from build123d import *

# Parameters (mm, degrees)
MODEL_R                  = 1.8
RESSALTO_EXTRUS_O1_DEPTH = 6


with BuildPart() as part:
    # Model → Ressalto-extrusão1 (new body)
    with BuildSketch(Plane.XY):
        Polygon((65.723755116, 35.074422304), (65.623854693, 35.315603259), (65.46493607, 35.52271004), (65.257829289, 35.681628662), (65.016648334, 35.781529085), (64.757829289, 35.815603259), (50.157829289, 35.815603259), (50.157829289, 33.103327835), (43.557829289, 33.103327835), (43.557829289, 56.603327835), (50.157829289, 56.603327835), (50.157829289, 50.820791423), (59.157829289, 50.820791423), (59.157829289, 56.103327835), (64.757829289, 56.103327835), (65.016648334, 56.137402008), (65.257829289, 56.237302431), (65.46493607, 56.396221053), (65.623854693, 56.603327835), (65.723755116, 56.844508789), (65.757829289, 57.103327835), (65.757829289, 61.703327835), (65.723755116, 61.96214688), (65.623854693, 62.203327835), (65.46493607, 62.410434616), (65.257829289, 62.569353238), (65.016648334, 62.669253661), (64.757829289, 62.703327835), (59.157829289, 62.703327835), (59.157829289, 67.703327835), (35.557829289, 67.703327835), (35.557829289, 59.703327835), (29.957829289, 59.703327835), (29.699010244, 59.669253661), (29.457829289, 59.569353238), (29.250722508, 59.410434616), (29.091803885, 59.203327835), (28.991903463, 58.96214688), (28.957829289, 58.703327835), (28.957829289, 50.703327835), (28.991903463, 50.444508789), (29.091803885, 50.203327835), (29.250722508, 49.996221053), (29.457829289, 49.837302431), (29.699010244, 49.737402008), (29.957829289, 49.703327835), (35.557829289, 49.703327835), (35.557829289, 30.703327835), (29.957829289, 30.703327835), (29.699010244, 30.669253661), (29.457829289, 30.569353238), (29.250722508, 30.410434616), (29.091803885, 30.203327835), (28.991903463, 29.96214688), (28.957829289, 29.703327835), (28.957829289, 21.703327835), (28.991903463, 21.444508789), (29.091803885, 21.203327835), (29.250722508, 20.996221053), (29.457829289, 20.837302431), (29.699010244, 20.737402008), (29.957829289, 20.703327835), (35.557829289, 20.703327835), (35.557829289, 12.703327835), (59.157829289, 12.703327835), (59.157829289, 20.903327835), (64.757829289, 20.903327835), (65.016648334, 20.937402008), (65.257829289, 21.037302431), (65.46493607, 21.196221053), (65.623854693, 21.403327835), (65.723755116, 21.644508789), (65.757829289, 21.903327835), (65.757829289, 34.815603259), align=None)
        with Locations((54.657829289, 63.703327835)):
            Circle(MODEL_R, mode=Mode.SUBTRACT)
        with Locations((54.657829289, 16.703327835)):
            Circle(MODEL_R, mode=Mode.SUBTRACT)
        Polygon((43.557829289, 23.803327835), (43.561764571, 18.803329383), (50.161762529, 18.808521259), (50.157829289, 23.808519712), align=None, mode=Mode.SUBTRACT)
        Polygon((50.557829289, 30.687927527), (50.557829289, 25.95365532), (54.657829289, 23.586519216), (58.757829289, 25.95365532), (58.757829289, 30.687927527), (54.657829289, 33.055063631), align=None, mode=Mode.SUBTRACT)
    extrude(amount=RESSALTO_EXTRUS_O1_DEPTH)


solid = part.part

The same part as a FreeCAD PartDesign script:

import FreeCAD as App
import Part
import Sketcher

V = App.Vector
Q = App.Units.Quantity

doc = App.newDocument("Part")
body = doc.addObject("PartDesign::Body", "Body")

sketch1 = body.newObject("Sketcher::SketchObject", "Sketch")
sketch1.AttachmentSupport = (doc.getObject("XY_Plane"), [""])
sketch1.MapMode = "FlatFace"
sketch1.addGeometry([
    Part.LineSegment(V(65.72, 35.07, 0), V(65.62, 35.32, 0)),
    Part.LineSegment(V(65.62, 35.32, 0), V(65.46, 35.52, 0)),
    Part.LineSegment(V(65.46, 35.52, 0), V(65.26, 35.68, 0)),
    Part.LineSegment(V(65.26, 35.68, 0), V(65.02, 35.78, 0)),
    Part.LineSegment(V(65.02, 35.78, 0), V(64.76, 35.82, 0)),
    Part.LineSegment(V(64.76, 35.82, 0), V(50.16, 35.82, 0)),
    Part.LineSegment(V(50.16, 35.82, 0), V(50.16, 33.1, 0)),
    Part.LineSegment(V(50.16, 33.1, 0), V(43.56, 33.1, 0)),
    Part.LineSegment(V(43.56, 33.1, 0), V(43.56, 56.6, 0)),
    Part.LineSegment(V(43.56, 56.6, 0), V(50.16, 56.6, 0)),
    Part.LineSegment(V(50.16, 56.6, 0), V(50.16, 50.82, 0)),
    Part.LineSegment(V(50.16, 50.82, 0), V(59.16, 50.82, 0)),
    Part.LineSegment(V(59.16, 50.82, 0), V(59.16, 56.1, 0)),
    Part.LineSegment(V(59.16, 56.1, 0), V(64.76, 56.1, 0)),
    Part.LineSegment(V(64.76, 56.1, 0), V(65.02, 56.14, 0)),
    Part.LineSegment(V(65.02, 56.14, 0), V(65.26, 56.24, 0)),
    Part.LineSegment(V(65.26, 56.24, 0), V(65.46, 56.4, 0)),
    Part.LineSegment(V(65.46, 56.4, 0), V(65.62, 56.6, 0)),
    Part.LineSegment(V(65.62, 56.6, 0), V(65.72, 56.84, 0)),
    Part.LineSegment(V(65.72, 56.84, 0), V(65.76, 57.1, 0)),
    Part.LineSegment(V(65.76, 57.1, 0), V(65.76, 61.7, 0)),
    Part.LineSegment(V(65.76, 61.7, 0), V(65.72, 61.96, 0)),
    Part.LineSegment(V(65.72, 61.96, 0), V(65.62, 62.2, 0)),
    Part.LineSegment(V(65.62, 62.2, 0), V(65.46, 62.41, 0)),
    Part.LineSegment(V(65.46, 62.41, 0), V(65.26, 62.57, 0)),
    Part.LineSegment(V(65.26, 62.57, 0), V(65.02, 62.67, 0)),
    Part.LineSegment(V(65.02, 62.67, 0), V(64.76, 62.7, 0)),
    Part.LineSegment(V(64.76, 62.7, 0), V(59.16, 62.7, 0)),
    Part.LineSegment(V(59.16, 62.7, 0), V(59.16, 67.7, 0)),
    Part.LineSegment(V(59.16, 67.7, 0), V(35.56, 67.7, 0)),
    Part.LineSegment(V(35.56, 67.7, 0), V(35.56, 59.7, 0)),
    Part.LineSegment(V(35.56, 59.7, 0), V(29.96, 59.7, 0)),
    Part.LineSegment(V(29.96, 59.7, 0), V(29.7, 59.67, 0)),
    Part.LineSegment(V(29.7, 59.67, 0), V(29.46, 59.57, 0)),
    Part.LineSegment(V(29.46, 59.57, 0), V(29.25, 59.41, 0)),
    Part.LineSegment(V(29.25, 59.41, 0), V(29.09, 59.2, 0)),
    Part.LineSegment(V(29.09, 59.2, 0), V(28.99, 58.96, 0)),
    Part.LineSegment(V(28.99, 58.96, 0), V(28.96, 58.7, 0)),
    Part.LineSegment(V(28.96, 58.7, 0), V(28.96, 50.7, 0)),
    Part.LineSegment(V(28.96, 50.7, 0), V(28.99, 50.44, 0)),
    Part.LineSegment(V(28.99, 50.44, 0), V(29.09, 50.2, 0)),
    Part.LineSegment(V(29.09, 50.2, 0), V(29.25, 50, 0)),
    Part.LineSegment(V(29.25, 50, 0), V(29.46, 49.84, 0)),
    Part.LineSegment(V(29.46, 49.84, 0), V(29.7, 49.74, 0)),
    Part.LineSegment(V(29.7, 49.74, 0), V(29.96, 49.7, 0)),
    Part.LineSegment(V(29.96, 49.7, 0), V(35.56, 49.7, 0)),
    Part.LineSegment(V(35.56, 49.7, 0), V(35.56, 30.7, 0)),
    Part.LineSegment(V(35.56, 30.7, 0), V(29.96, 30.7, 0)),
    Part.LineSegment(V(29.96, 30.7, 0), V(29.7, 30.67, 0)),
    Part.LineSegment(V(29.7, 30.67, 0), V(29.46, 30.57, 0)),
    Part.LineSegment(V(29.46, 30.57, 0), V(29.25, 30.41, 0)),
    Part.LineSegment(V(29.25, 30.41, 0), V(29.09, 30.2, 0)),
    Part.LineSegment(V(29.09, 30.2, 0), V(28.99, 29.96, 0)),
    Part.LineSegment(V(28.99, 29.96, 0), V(28.96, 29.7, 0)),
    Part.LineSegment(V(28.96, 29.7, 0), V(28.96, 21.7, 0)),
    Part.LineSegment(V(28.96, 21.7, 0), V(28.99, 21.44, 0)),
    Part.LineSegment(V(28.99, 21.44, 0), V(29.09, 21.2, 0)),
    Part.LineSegment(V(29.09, 21.2, 0), V(29.25, 21, 0)),
    Part.LineSegment(V(29.25, 21, 0), V(29.46, 20.84, 0)),
    Part.LineSegment(V(29.46, 20.84, 0), V(29.7, 20.74, 0)),
    Part.LineSegment(V(29.7, 20.74, 0), V(29.96, 20.7, 0)),
    Part.LineSegment(V(29.96, 20.7, 0), V(35.56, 20.7, 0)),
    Part.LineSegment(V(35.56, 20.7, 0), V(35.56, 12.7, 0)),
    Part.LineSegment(V(35.56, 12.7, 0), V(59.16, 12.7, 0)),
    Part.LineSegment(V(59.16, 12.7, 0), V(59.16, 20.9, 0)),
    Part.LineSegment(V(59.16, 20.9, 0), V(64.76, 20.9, 0)),
    Part.LineSegment(V(64.76, 20.9, 0), V(65.02, 20.94, 0)),
    Part.LineSegment(V(65.02, 20.94, 0), V(65.26, 21.04, 0)),
    Part.LineSegment(V(65.26, 21.04, 0), V(65.46, 21.2, 0)),
    Part.LineSegment(V(65.46, 21.2, 0), V(65.62, 21.4, 0)),
    Part.LineSegment(V(65.62, 21.4, 0), V(65.72, 21.64, 0)),
    Part.LineSegment(V(65.72, 21.64, 0), V(65.76, 21.9, 0)),
    Part.LineSegment(V(65.76, 21.9, 0), V(65.76, 34.82, 0)),
    Part.LineSegment(V(65.76, 34.82, 0), V(65.72, 35.07, 0)),
    Part.LineSegment(V(43.56, 18.8, 0), V(43.56, 23.8, 0)),
    Part.LineSegment(V(43.56, 23.8, 0), V(50.16, 23.81, 0)),
    Part.LineSegment(V(50.16, 23.81, 0), V(50.16, 18.81, 0)),
    Part.LineSegment(V(50.16, 18.81, 0), V(43.56, 18.8, 0)),
    Part.Circle(V(54.66, 16.7, 0), V(0, 0, 1), 1.8),
    Part.LineSegment(V(50.56, 25.95, 0), V(50.56, 30.69, 0)),
    Part.LineSegment(V(50.56, 30.69, 0), V(54.66, 33.06, 0)),
    Part.LineSegment(V(54.66, 33.06, 0), V(58.76, 30.69, 0)),
    Part.LineSegment(V(58.76, 30.69, 0), V(58.76, 25.95, 0)),
    Part.LineSegment(V(58.76, 25.95, 0), V(54.66, 23.59, 0)),
    Part.LineSegment(V(54.66, 23.59, 0), V(50.56, 25.95, 0)),
    Part.Circle(V(54.66, 63.7, 0), V(0, 0, 1), 1.8),
], False)
sketch1.addConstraint([
    Sketcher.Constraint("Coincident", 0, 2, 1, 1),
    Sketcher.Constraint("Coincident", 1, 2, 2, 1),
    Sketcher.Constraint("Coincident", 2, 2, 3, 1),
    Sketcher.Constraint("Coincident", 3, 2, 4, 1),
    Sketcher.Constraint("Coincident", 4, 2, 5, 1),
    Sketcher.Constraint("Coincident", 5, 2, 6, 1),
    Sketcher.Constraint("Coincident", 6, 2, 7, 1),
    Sketcher.Constraint("Coincident", 7, 2, 8, 1),
    Sketcher.Constraint("Coincident", 8, 2, 9, 1),
    Sketcher.Constraint("Coincident", 9, 2, 10, 1),
    Sketcher.Constraint("Coincident", 10, 2, 11, 1),
    Sketcher.Constraint("Coincident", 11, 2, 12, 1),
    Sketcher.Constraint("Coincident", 12, 2, 13, 1),
    Sketcher.Constraint("Coincident", 13, 2, 14, 1),
    Sketcher.Constraint("Coincident", 14, 2, 15, 1),
    Sketcher.Constraint("Coincident", 15, 2, 16, 1),
    Sketcher.Constraint("Coincident", 16, 2, 17, 1),
    Sketcher.Constraint("Coincident", 17, 2, 18, 1),
    Sketcher.Constraint("Coincident", 18, 2, 19, 1),
    Sketcher.Constraint("Coincident", 19, 2, 20, 1),
    Sketcher.Constraint("Coincident", 20, 2, 21, 1),
    Sketcher.Constraint("Coincident", 21, 2, 22, 1),
    Sketcher.Constraint("Coincident", 22, 2, 23, 1),
    Sketcher.Constraint("Coincident", 23, 2, 24, 1),
    Sketcher.Constraint("Coincident", 24, 2, 25, 1),
    Sketcher.Constraint("Coincident", 25, 2, 26, 1),
    Sketcher.Constraint("Coincident", 26, 2, 27, 1),
    Sketcher.Constraint("Coincident", 27, 2, 28, 1),
    Sketcher.Constraint("Coincident", 28, 2, 29, 1),
    Sketcher.Constraint("Coincident", 29, 2, 30, 1),
    Sketcher.Constraint("Coincident", 30, 2, 31, 1),
    Sketcher.Constraint("Coincident", 31, 2, 32, 1),
    Sketcher.Constraint("Coincident", 32, 2, 33, 1),
    Sketcher.Constraint("Coincident", 33, 2, 34, 1),
    Sketcher.Constraint("Coincident", 34, 2, 35, 1),
    Sketcher.Constraint("Coincident", 35, 2, 36, 1),
    Sketcher.Constraint("Coincident", 36, 2, 37, 1),
    Sketcher.Constraint("Coincident", 37, 2, 38, 1),
    Sketcher.Constraint("Coincident", 38, 2, 39, 1),
    Sketcher.Constraint("Coincident", 39, 2, 40, 1),
    Sketcher.Constraint("Coincident", 40, 2, 41, 1),
    Sketcher.Constraint("Coincident", 41, 2, 42, 1),
    Sketcher.Constraint("Coincident", 42, 2, 43, 1),
    Sketcher.Constraint("Coincident", 43, 2, 44, 1),
    Sketcher.Constraint("Coincident", 44, 2, 45, 1),
    Sketcher.Constraint("Coincident", 45, 2, 46, 1),
    Sketcher.Constraint("Coincident", 46, 2, 47, 1),
    Sketcher.Constraint("Coincident", 47, 2, 48, 1),
    Sketcher.Constraint("Coincident", 48, 2, 49, 1),
    Sketcher.Constraint("Coincident", 49, 2, 50, 1),
    Sketcher.Constraint("Coincident", 50, 2, 51, 1),
    Sketcher.Constraint("Coincident", 51, 2, 52, 1),
    Sketcher.Constraint("Coincident", 52, 2, 53, 1),
    Sketcher.Constraint("Coincident", 53, 2, 54, 1),
    Sketcher.Constraint("Coincident", 54, 2, 55, 1),
    Sketcher.Constraint("Coincident", 55, 2, 56, 1),
    Sketcher.Constraint("Coincident", 56, 2, 57, 1),
    Sketcher.Constraint("Coincident", 57, 2, 58, 1),
    Sketcher.Constraint("Coincident", 58, 2, 59, 1),
    Sketcher.Constraint("Coincident", 59, 2, 60, 1),
    Sketcher.Constraint("Coincident", 60, 2, 61, 1),
    Sketcher.Constraint("Coincident", 61, 2, 62, 1),
    Sketcher.Constraint("Coincident", 62, 2, 63, 1),
    Sketcher.Constraint("Coincident", 63, 2, 64, 1),
    Sketcher.Constraint("Coincident", 64, 2, 65, 1),
    Sketcher.Constraint("Coincident", 65, 2, 66, 1),
    Sketcher.Constraint("Coincident", 66, 2, 67, 1),
    Sketcher.Constraint("Coincident", 67, 2, 68, 1),
    Sketcher.Constraint("Coincident", 68, 2, 69, 1),
    Sketcher.Constraint("Coincident", 69, 2, 70, 1),
    Sketcher.Constraint("Coincident", 70, 2, 71, 1),
    Sketcher.Constraint("Coincident", 71, 2, 72, 1),
    Sketcher.Constraint("Coincident", 72, 2, 73, 1),
    Sketcher.Constraint("Coincident", 73, 2, 0, 1),
    Sketcher.Constraint("Coincident", 74, 2, 75, 1),
    Sketcher.Constraint("Coincident", 75, 2, 76, 1),
    Sketcher.Constraint("Coincident", 76, 2, 77, 1),
    Sketcher.Constraint("Coincident", 77, 2, 74, 1),
    Sketcher.Constraint("Coincident", 79, 2, 80, 1),
    Sketcher.Constraint("Coincident", 80, 2, 81, 1),
    Sketcher.Constraint("Coincident", 81, 2, 82, 1),
    Sketcher.Constraint("Coincident", 82, 2, 83, 1),
    Sketcher.Constraint("Coincident", 83, 2, 84, 1),
    Sketcher.Constraint("Coincident", 84, 2, 79, 1),
    Sketcher.Constraint("Horizontal", 5),
    Sketcher.Constraint("Vertical", 6),
    Sketcher.Constraint("Horizontal", 7),
    Sketcher.Constraint("Vertical", 8),
    Sketcher.Constraint("Horizontal", 9),
    Sketcher.Constraint("Vertical", 10),
    Sketcher.Constraint("Horizontal", 11),
    Sketcher.Constraint("Vertical", 12),
    Sketcher.Constraint("Horizontal", 13),
    Sketcher.Constraint("Vertical", 20),
    Sketcher.Constraint("Horizontal", 27),
    Sketcher.Constraint("Vertical", 28),
    Sketcher.Constraint("Horizontal", 29),
    Sketcher.Constraint("Vertical", 30),
    Sketcher.Constraint("Horizontal", 31),
    Sketcher.Constraint("Vertical", 38),
    Sketcher.Constraint("Horizontal", 45),
    Sketcher.Constraint("Vertical", 46),
    Sketcher.Constraint("Horizontal", 47),
    Sketcher.Constraint("Vertical", 54),
    Sketcher.Constraint("Horizontal", 61),
    Sketcher.Constraint("Vertical", 62),
    Sketcher.Constraint("Horizontal", 63),
    Sketcher.Constraint("Vertical", 64),
    Sketcher.Constraint("Horizontal", 65),
    Sketcher.Constraint("Vertical", 72),
    Sketcher.Constraint("Vertical", 79),
    Sketcher.Constraint("Vertical", 82),
    Sketcher.Constraint("Equal", 78, 85),
    Sketcher.Constraint("Perpendicular", 0, 15),
    Sketcher.Constraint("Perpendicular", 1, 16),
    Sketcher.Constraint("Perpendicular", 2, 17),
    Sketcher.Constraint("Perpendicular", 3, 18),
    Sketcher.Constraint("Perpendicular", 4, 19),
    Sketcher.Constraint("Perpendicular", 14, 21),
    Sketcher.Constraint("Perpendicular", 15, 22),
    Sketcher.Constraint("Perpendicular", 16, 23),
    Sketcher.Constraint("Perpendicular", 17, 24),
    Sketcher.Constraint("Perpendicular", 18, 25),
    Sketcher.Constraint("Perpendicular", 19, 26),
    Sketcher.Constraint("Perpendicular", 21, 32),
    Sketcher.Constraint("Perpendicular", 22, 33),
    Sketcher.Constraint("Perpendicular", 23, 34),
    Sketcher.Constraint("Perpendicular", 24, 35),
    Sketcher.Constraint("Perpendicular", 25, 36),
    Sketcher.Constraint("Perpendicular", 26, 37),
    Sketcher.Constraint("Perpendicular", 32, 39),
    Sketcher.Constraint("Perpendicular", 33, 40),
    Sketcher.Constraint("Perpendicular", 34, 41),
    Sketcher.Constraint("Perpendicular", 35, 42),
    Sketcher.Constraint("Perpendicular", 36, 43),
    Sketcher.Constraint("Perpendicular", 37, 44),
    Sketcher.Constraint("Perpendicular", 39, 48),
    Sketcher.Constraint("Perpendicular", 40, 49),
    Sketcher.Constraint("Perpendicular", 41, 50),
    Sketcher.Constraint("Perpendicular", 42, 51),
    Sketcher.Constraint("Perpendicular", 43, 52),
    Sketcher.Constraint("Perpendicular", 44, 53),
    Sketcher.Constraint("Perpendicular", 48, 55),
    Sketcher.Constraint("Perpendicular", 49, 56),
    Sketcher.Constraint("Perpendicular", 50, 57),
    Sketcher.Constraint("Perpendicular", 51, 58),
    Sketcher.Constraint("Perpendicular", 52, 59),
    Sketcher.Constraint("Perpendicular", 53, 60),
    Sketcher.Constraint("Perpendicular", 55, 66),
    Sketcher.Constraint("Perpendicular", 56, 67),
    Sketcher.Constraint("Perpendicular", 57, 68),
    Sketcher.Constraint("Perpendicular", 58, 69),
    Sketcher.Constraint("Perpendicular", 59, 70),
    Sketcher.Constraint("Perpendicular", 60, 71),
    Sketcher.Constraint("Perpendicular", 66, 73),
    Sketcher.Constraint("Perpendicular", 74, 75),
    Sketcher.Constraint("Perpendicular", 75, 76),
    Sketcher.Constraint("Perpendicular", 76, 77),
    Sketcher.Constraint("Parallel", 80, 83),
    Sketcher.Constraint("Parallel", 81, 84),
    Sketcher.Constraint("Horizontal", 9, 2, 17, 2),
    Sketcher.Constraint("Horizontal", 79, 2, 81, 2),
    Sketcher.Constraint("Horizontal", 82, 2, 84, 2),
    Sketcher.Constraint("Vertical", 78, 3, 85, 3),
    Sketcher.Constraint("Vertical", 6, 2, 9, 2),
    Sketcher.Constraint("Vertical", 4, 2, 13, 2),
    Sketcher.Constraint("Vertical", 3, 2, 14, 2),
    Sketcher.Constraint("Vertical", 2, 2, 15, 2),
    Sketcher.Constraint("Vertical", 1, 2, 16, 2),
    Sketcher.Constraint("Vertical", 0, 2, 17, 2),
    Sketcher.Constraint("Vertical", 18, 2, 21, 2),
    Sketcher.Constraint("Vertical", 17, 2, 22, 2),
    Sketcher.Constraint("Vertical", 16, 2, 23, 2),
    Sketcher.Constraint("Vertical", 15, 2, 24, 2),
    Sketcher.Constraint("Vertical", 14, 2, 25, 2),
    Sketcher.Constraint("Vertical", 13, 2, 26, 2),
    Sketcher.Constraint("Vertical", 12, 2, 27, 2),
    Sketcher.Constraint("Vertical", 36, 2, 39, 2),
    Sketcher.Constraint("Vertical", 35, 2, 40, 2),
    Sketcher.Constraint("Vertical", 34, 2, 41, 2),
    Sketcher.Constraint("Vertical", 33, 2, 42, 2),
    Sketcher.Constraint("Vertical", 32, 2, 43, 2),
    Sketcher.Constraint("Vertical", 31, 2, 44, 2),
    Sketcher.Constraint("Vertical", 30, 2, 45, 2),
    Sketcher.Constraint("Vertical", 44, 2, 47, 2),
    Sketcher.Constraint("Vertical", 43, 2, 48, 2),
    Sketcher.Constraint("Vertical", 42, 2, 49, 2),
    Sketcher.Constraint("Vertical", 41, 2, 50, 2),
    Sketcher.Constraint("Vertical", 40, 2, 51, 2),
    Sketcher.Constraint("Vertical", 39, 2, 52, 2),
    Sketcher.Constraint("Vertical", 38, 2, 53, 2),
    Sketcher.Constraint("Vertical", 52, 2, 55, 2),
    Sketcher.Constraint("Vertical", 51, 2, 56, 2),
    Sketcher.Constraint("Vertical", 50, 2, 57, 2),
    Sketcher.Constraint("Vertical", 49, 2, 58, 2),
    Sketcher.Constraint("Vertical", 48, 2, 59, 2),
    Sketcher.Constraint("Vertical", 47, 2, 60, 2),
    Sketcher.Constraint("Vertical", 46, 2, 61, 2),
    Sketcher.Constraint("Vertical", 28, 2, 63, 2),
    Sketcher.Constraint("Vertical", 26, 2, 65, 2),
    Sketcher.Constraint("Vertical", 25, 2, 66, 2),
    Sketcher.Constraint("Vertical", 24, 2, 67, 2),
    Sketcher.Constraint("Vertical", 23, 2, 68, 2),
    Sketcher.Constraint("Vertical", 22, 2, 69, 2),
    Sketcher.Constraint("Vertical", 21, 2, 70, 2),
    Sketcher.Constraint("Vertical", 20, 2, 71, 2),
    Sketcher.Constraint("Vertical", 70, 2, 73, 2),
    Sketcher.Constraint("Vertical", 8, 2, 74, 2),
    Sketcher.Constraint("Vertical", 10, 2, 75, 2),
    Sketcher.Constraint("Vertical", 85, 3, 80, 2),
    Sketcher.Constraint("Vertical", 80, 2, 83, 2),
    Sketcher.Constraint("Equal", 27, 31),
    Sketcher.Constraint("Equal", 30, 38),
    Sketcher.Constraint("Equal", 38, 54),
    Sketcher.Constraint("Equal", 54, 62),
    Sketcher.Constraint("Equal", 0, 1),
    Sketcher.Constraint("Equal", 1, 2),
    Sketcher.Constraint("Equal", 2, 3),
    Sketcher.Constraint("Equal", 3, 4),
    Sketcher.Constraint("Equal", 4, 14),
    Sketcher.Constraint("Equal", 14, 15),
    Sketcher.Constraint("Equal", 15, 16),
    Sketcher.Constraint("Equal", 18, 19),
    Sketcher.Constraint("Equal", 26, 32),
    Sketcher.Constraint("Equal", 32, 33),
    Sketcher.Constraint("Equal", 33, 34),
    Sketcher.Constraint("Equal", 34, 35),
    Sketcher.Constraint("Equal", 35, 36),
    Sketcher.Constraint("Equal", 36, 37),
    Sketcher.Constraint("Diameter", 78, 3.6),
    Sketcher.Constraint("DistanceX", 11, 1, 11, 2, 9.0),
    Sketcher.Constraint("DistanceY", 28, 1, 28, 2, 5.0),
    Sketcher.Constraint("DistanceY", 30, 2, 30, 1, 8.0),
    Sketcher.Constraint("DistanceY", 46, 2, 46, 1, 19.0),
    Sketcher.Constraint("Angle", 80, Q("30 deg")),
    Sketcher.Constraint("Distance", 74, 5.0),
    Sketcher.Constraint("DistanceX", 5, 2, 5, 1, 14.6),
    Sketcher.Constraint("DistanceX", 7, 2, 7, 1, 6.6),
    Sketcher.Constraint("DistanceX", 29, 2, 29, 1, 23.6),
    Sketcher.Constraint("DistanceY", 8, 1, 8, 2, 23.5),
    Sketcher.Constraint("DistanceY", 20, 1, 20, 2, 4.6),
    Sketcher.Constraint("DistanceY", 64, 1, 64, 2, 8.2),
    Sketcher.Constraint("Angle", 0, Q("112.5 deg")),
    Sketcher.Constraint("Angle", 1, Q("127.5 deg")),
    Sketcher.Constraint("Angle", 4, Q("172.5 deg")),
    Sketcher.Constraint("DistanceY", 6, 2, 6, 1, 2.712275),
    Sketcher.Constraint("DistanceY", 10, 2, 10, 1, 5.782536),
    Sketcher.Constraint("DistanceY", 12, 1, 12, 2, 5.282536),
    Sketcher.Constraint("DistanceY", 79, 1, 79, 2, 4.734272),
    Sketcher.Constraint("DistanceX", -1, 1, 78, 3, 54.657829),
    Sketcher.Constraint("DistanceY", -1, 1, 1, 2, 35.52271),
    Sketcher.Constraint("DistanceX", -1, 1, 2, 2, 65.257829),
    Sketcher.Constraint("DistanceY", -1, 1, 75, 2, 23.80852),
    Sketcher.Constraint("DistanceY", -1, 1, 77, 2, 18.803329),
    Sketcher.Constraint("DistanceX", -1, 1, 79, 2, 50.557829),
    Sketcher.Constraint("DistanceY", -1, 1, 83, 2, 23.586519),
    Sketcher.Constraint("DistanceY", -1, 1, 78, 3, 16.703328),
    Sketcher.Constraint("DistanceY", -1, 1, 85, 3, 63.703328),
])
pad1 = body.newObject("PartDesign::Pad", "Pad")
pad1.Profile = sketch1
pad1.Length = 6

doc.recompute()
